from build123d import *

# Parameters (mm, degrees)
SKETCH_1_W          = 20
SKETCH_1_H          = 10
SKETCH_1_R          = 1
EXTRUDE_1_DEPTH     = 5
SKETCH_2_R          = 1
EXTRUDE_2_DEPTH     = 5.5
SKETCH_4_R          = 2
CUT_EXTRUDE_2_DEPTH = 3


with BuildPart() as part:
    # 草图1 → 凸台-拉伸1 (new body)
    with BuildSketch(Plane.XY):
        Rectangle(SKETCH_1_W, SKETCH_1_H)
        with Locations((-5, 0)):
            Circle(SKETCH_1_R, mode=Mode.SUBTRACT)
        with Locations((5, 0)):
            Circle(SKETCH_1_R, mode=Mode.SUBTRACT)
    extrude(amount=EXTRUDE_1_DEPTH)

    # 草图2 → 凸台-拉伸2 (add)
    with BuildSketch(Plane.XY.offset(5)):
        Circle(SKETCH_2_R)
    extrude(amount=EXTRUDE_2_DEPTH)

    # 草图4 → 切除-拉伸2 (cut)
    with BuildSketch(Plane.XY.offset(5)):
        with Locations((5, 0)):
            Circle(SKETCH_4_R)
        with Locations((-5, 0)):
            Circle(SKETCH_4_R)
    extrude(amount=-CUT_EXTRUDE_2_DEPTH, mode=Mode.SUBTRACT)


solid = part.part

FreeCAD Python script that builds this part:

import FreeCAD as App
import Part
import Sketcher
from FreeCAD import Vector
Q = App.Units.Quantity

doc = App.newDocument("Part")
body = doc.addObject("PartDesign::Body", "Body")

# Sketch on XY plane
sketch1 = body.newObject("Sketcher::SketchObject", "Sketch")
sketch1.AttachmentSupport = (doc.getObject("XY_Plane"), [""])
sketch1.MapMode = "FlatFace"
sketch1.addGeometry([
    Part.LineSegment(Vector(-10, 5, 0), Vector(-10, -5, 0)),  # 0
    Part.LineSegment(Vector(-10, -5, 0), Vector(10, -5, 0)),  # 1
    Part.LineSegment(Vector(10, -5, 0), Vector(10, 5, 0)),  # 2
    Part.LineSegment(Vector(10, 5, 0), Vector(-10, 5, 0)),  # 3
    Part.Circle(Vector(-5, 0, 0), Vector(0, 0, 1), 1),  # 4
    Part.Circle(Vector(5, 0, 0), Vector(0, 0, 1), 1),  # 5
], False)
sketch1.addConstraint([
    Sketcher.Constraint("Coincident", 0, 2, 1, 1),
    Sketcher.Constraint("Coincident", 1, 2, 2, 1),
    Sketcher.Constraint("Coincident", 2, 2, 3, 1),
    Sketcher.Constraint("Coincident", 3, 2, 0, 1),
    Sketcher.Constraint("Vertical", 0),
    Sketcher.Constraint("Horizontal", 1),
    Sketcher.Constraint("Vertical", 2),
    Sketcher.Constraint("Horizontal", 3),
    Sketcher.Constraint("Equal", 4, 5),
    Sketcher.Constraint("Symmetric", 4, 3, 5, 3, -1, 1),
    Sketcher.Constraint("Symmetric", 0, 2, 2, 2, -1, 1),
    Sketcher.Constraint("PointOnObject", 4, 3, -1),
    Sketcher.Constraint("Diameter", 4, Q("2 mm")),
    Sketcher.Constraint("DistanceX", 1, 1, 1, 2, Q("20 mm")),
    Sketcher.Constraint("DistanceY", 0, 2, 0, 1, Q("10 mm")),
    Sketcher.Constraint("DistanceX", 4, 3, -1, 1, Q("5 mm")),
])
pad1 = body.newObject("PartDesign::Pad", "Pad")
pad1.Profile = sketch1
pad1.Length = 5

# Sketch on XY plane
sketch2 = body.newObject("Sketcher::SketchObject", "Sketch001")
sketch2.AttachmentSupport = (doc.getObject("XY_Plane"), [""])
sketch2.MapMode = "FlatFace"
sketch2.AttachmentOffset = App.Placement(Vector(0, 0, 5), App.Rotation())
sketch2.addGeometry(Part.Circle(Vector(0, 0, 0), Vector(0, 0, 1), 1), False)
sketch2.addConstraint([
    Sketcher.Constraint("Coincident", 0, 3, -1, 1),
    Sketcher.Constraint("Diameter", 0, Q("2 mm")),
])
pad2 = body.newObject("PartDesign::Pad", "Pad001")
pad2.Profile = sketch2
pad2.Length = 5.5

# Sketch on XY plane
sketch3 = body.newObject("Sketcher::SketchObject", "Sketch002")
sketch3.AttachmentSupport = (doc.getObject("XY_Plane"), [""])
sketch3.MapMode = "FlatFace"
sketch3.AttachmentOffset = App.Placement(Vector(0, 0, 5), App.Rotation())
sketch3.addGeometry([
    Part.Circle(Vector(5, 0, 0), Vector(0, 0, 1), 2),
    Part.Circle(Vector(-5, 0, 0), Vector(0, 0, 1), 2),
], False)
sketch3.addConstraint([
    Sketcher.Constraint("Equal", 0, 1),
    Sketcher.Constraint("Symmetric", 0, 3, 1, 3, -1, 1),
    Sketcher.Constraint("PointOnObject", 0, 3, -1),
    Sketcher.Constraint("Diameter", 0, Q("4 mm")),
    Sketcher.Constraint("DistanceX", -1, 1, 0, 3, Q("5 mm")),
])
pocket1 = body.newObject("PartDesign::Pocket", "Pocket")
pocket1.Profile = sketch3
pocket1.Length = 3

doc.recompute()
